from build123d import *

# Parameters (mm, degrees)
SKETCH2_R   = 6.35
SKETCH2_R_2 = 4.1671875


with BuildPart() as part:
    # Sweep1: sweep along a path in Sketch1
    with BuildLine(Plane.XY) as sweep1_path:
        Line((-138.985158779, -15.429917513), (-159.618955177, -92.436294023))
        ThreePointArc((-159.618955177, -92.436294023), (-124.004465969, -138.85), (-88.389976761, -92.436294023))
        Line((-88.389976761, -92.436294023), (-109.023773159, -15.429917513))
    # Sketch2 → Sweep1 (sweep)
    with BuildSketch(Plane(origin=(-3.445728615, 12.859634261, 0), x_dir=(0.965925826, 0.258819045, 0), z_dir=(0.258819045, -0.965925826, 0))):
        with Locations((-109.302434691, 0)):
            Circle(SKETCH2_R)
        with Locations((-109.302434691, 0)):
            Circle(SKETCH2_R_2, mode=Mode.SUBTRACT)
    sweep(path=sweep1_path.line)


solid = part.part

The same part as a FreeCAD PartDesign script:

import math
import FreeCAD as App
import Part
import Sketcher
Q = App.Units.Quantity

doc = App.newDocument("Part")
body = doc.addObject("PartDesign::Body", "Body")

sketch1 = body.newObject("Sketcher::SketchObject", "Sketch")
sketch1.Placement = App.Placement(App.Vector(-3.445729, 12.859634, 0), App.Rotation(App.Vector(0.965925826, 0.258819045, 0), App.Vector(0, 0, 0.999999999), App.Vector(0.258819045, -0.965925826, 0), "ZXY"))
sketch1.addGeometry(Part.Circle(App.Vector(-109.302435, 0, 0), App.Vector(0, 0, 1), 6.35), False)
sketch1.addGeometry(Part.Circle(App.Vector(-109.302435, 0, 0), App.Vector(0, 0, 1), 4.167187), False)
sketch1.addConstraint(Sketcher.Constraint("Coincident", 1, 3, 0, 3))
sketch1.addConstraint(Sketcher.Constraint("PointOnObject", 0, 3, -1))
sketch1.addConstraint(Sketcher.Constraint("Diameter", 0, Q("0.5 in")))
sketch1.addConstraint(Sketcher.Constraint("Diameter", 1, Q("0.328125 in")))
sketch1.addConstraint(Sketcher.Constraint("DistanceX", 0, 3, -1, 1, 109.302435))

sketch2 = body.newObject("Sketcher::SketchObject", "Sketch001")
sketch2.AttachmentSupport = (doc.getObject("XY_Plane"), [""])
sketch2.MapMode = "FlatFace"
sketch2.addGeometry(Part.LineSegment(App.Vector(-138.985159, -15.429918, 0), App.Vector(-159.618955, -92.436294, 0)), False)
sketch2.addGeometry(Part.ArcOfCircle(Part.Circle(App.Vector(-124.004466, -101.979168, 0), App.Vector(0, 0, 1), 36.870832), math.radians(165), math.radians(375)), False)
sketch2.addGeometry(Part.LineSegment(App.Vector(-88.389977, -92.436294, 0), App.Vector(-109.023773, -15.429918, 0)), False)
sketch2.addConstraint(Sketcher.Constraint("Tangent", 0, 2, 1, 1))
sketch2.addConstraint(Sketcher.Constraint("Tangent", 1, 2, 2, 1))
sketch2.addConstraint(Sketcher.Constraint("Horizontal", 0, 2, 1, 2))
sketch2.addConstraint(Sketcher.Constraint("Horizontal", 0, 1, 2, 2))
sketch2.addConstraint(Sketcher.Constraint("Angle", 0, Q("-105 deg")))
sketch2.addConstraint(Sketcher.Constraint("Radius", 1, 36.870832))
sketch2.addConstraint(Sketcher.Constraint("DistanceX", 0, 1, -1, 1, 138.985159))
sketch2.addConstraint(Sketcher.Constraint("DistanceY", 1, 3, 0, 1, 86.54925))
sketch2.addConstraint(Sketcher.Constraint("DistanceY", 1, 3, -1, 1, 101.979168))
doc.recompute()

additivepipe = body.newObject("PartDesign::AdditivePipe", "AdditivePipe")
additivepipe.Profile = sketch1
additivepipe.Spine = (sketch2, ["Edge1", "Edge2", "Edge3"])

doc.recompute()
